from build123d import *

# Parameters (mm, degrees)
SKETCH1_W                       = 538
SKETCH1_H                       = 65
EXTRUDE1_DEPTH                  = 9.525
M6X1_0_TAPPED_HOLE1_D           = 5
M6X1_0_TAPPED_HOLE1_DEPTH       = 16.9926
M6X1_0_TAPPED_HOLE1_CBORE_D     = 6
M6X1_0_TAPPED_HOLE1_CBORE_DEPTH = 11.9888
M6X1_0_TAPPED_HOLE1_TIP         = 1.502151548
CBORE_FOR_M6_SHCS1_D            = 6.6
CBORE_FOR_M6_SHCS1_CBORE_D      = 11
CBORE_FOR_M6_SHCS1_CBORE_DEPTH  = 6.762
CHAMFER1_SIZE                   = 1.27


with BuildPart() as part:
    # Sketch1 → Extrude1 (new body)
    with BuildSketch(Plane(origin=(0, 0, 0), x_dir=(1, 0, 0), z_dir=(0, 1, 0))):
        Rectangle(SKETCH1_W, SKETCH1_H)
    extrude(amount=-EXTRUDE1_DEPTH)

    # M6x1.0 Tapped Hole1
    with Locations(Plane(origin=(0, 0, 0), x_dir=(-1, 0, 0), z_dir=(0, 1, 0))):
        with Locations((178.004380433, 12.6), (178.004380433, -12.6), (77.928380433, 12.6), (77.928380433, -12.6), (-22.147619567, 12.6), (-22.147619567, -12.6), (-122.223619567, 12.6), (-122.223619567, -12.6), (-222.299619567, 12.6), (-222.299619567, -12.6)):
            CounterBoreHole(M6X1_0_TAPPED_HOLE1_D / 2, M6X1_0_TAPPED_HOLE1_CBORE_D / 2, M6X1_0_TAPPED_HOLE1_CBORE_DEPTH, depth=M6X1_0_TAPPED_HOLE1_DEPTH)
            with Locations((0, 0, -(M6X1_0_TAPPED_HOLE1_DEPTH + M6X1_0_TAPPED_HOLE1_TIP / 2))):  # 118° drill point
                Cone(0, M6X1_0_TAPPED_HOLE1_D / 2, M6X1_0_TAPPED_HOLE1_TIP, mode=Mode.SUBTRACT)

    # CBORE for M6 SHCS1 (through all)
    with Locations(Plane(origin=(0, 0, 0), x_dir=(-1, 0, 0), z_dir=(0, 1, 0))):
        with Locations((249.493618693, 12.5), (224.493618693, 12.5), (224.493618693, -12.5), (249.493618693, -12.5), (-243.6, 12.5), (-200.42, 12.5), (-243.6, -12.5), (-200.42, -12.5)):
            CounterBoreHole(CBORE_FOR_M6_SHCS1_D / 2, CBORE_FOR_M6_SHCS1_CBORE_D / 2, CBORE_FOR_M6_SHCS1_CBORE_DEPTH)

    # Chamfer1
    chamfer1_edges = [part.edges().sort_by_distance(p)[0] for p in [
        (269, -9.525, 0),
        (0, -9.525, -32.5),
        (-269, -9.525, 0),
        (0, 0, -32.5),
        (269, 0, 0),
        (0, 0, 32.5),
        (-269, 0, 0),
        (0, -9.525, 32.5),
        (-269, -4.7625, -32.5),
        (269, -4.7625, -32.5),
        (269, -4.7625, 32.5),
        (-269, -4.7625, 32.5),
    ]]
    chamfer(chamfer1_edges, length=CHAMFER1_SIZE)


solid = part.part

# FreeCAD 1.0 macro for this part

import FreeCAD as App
import Part
import Sketcher


def edges_at(feature, points):
    """Names of the edges that pass closest to the given points."""
    edges = feature.Shape.Edges
    near = lambda p: min(range(len(edges)), key=lambda i: edges[i].distToShape(Part.Vertex(*p))[0])
    return sorted({f"Edge{near(p) + 1}" for p in points})


def add_polygon(sketch, points):
    """Adds a closed chain of lines whose ends are joined by coincident constraints."""
    first, n = sketch.GeometryCount, len(points)
    for a, b in zip(points, points[1:] + points[:1]):
        sketch.addGeometry(Part.LineSegment(App.Vector(*a, 0), App.Vector(*b, 0)), False)
    for i in range(n):
        sketch.addConstraint(Sketcher.Constraint("Coincident", first + i, 2, first + (i + 1) % n, 1))

doc = App.newDocument("Part")
body = doc.addObject("PartDesign::Body", "Body")

# Sketch on XZ plane
sketch1 = body.newObject("Sketcher::SketchObject", "Sketch")
sketch1.AttachmentSupport = (doc.getObject("XZ_Plane"), [""])
sketch1.MapMode = "FlatFace"
add_polygon(sketch1, [(-269, -32), (-269, 32), (269, 32), (269, -32)])  # lines 0-3
sketch1.addConstraint([
    Sketcher.Constraint("Vertical", 0),
    Sketcher.Constraint("Horizontal", 1),
    Sketcher.Constraint("Vertical", 2),
    Sketcher.Constraint("Horizontal", 3),
    Sketcher.Constraint("Symmetric", 0, 2, 2, 2, -1, 1),
    Sketcher.Constraint("DistanceX", 1, 1, 1, 2, 538.0),
    Sketcher.Constraint("DistanceY", 0, 1, 0, 2, 65.0),
])
pad1 = body.newObject("PartDesign::Pad", "Pad")
pad1.Profile = sketch1
pad1.Length = 9.525

# Sketch on XZ plane
sketch2 = body.newObject("Sketcher::SketchObject", "Sketch001")
sketch2.AttachmentSupport = (doc.getObject("XZ_Plane"), [""])
sketch2.MapMode = "FlatFace"
sketch2.addGeometry([
    Part.Circle(App.Vector(-178, 12.6, 0), App.Vector(0, 0, 1), 2.5),  # 0
    Part.Circle(App.Vector(-178, -12.6, 0), App.Vector(0, 0, 1), 2.5),  # 1
    Part.Circle(App.Vector(-77.9, 12.6, 0), App.Vector(0, 0, 1), 2.5),  # 2
    Part.Circle(App.Vector(-77.9, -12.6, 0), App.Vector(0, 0, 1), 2.5),  # 3
    Part.Circle(App.Vector(22.1, 12.6, 0), App.Vector(0, 0, 1), 2.5),  # 4
    Part.Circle(App.Vector(22.1, -12.6, 0), App.Vector(0, 0, 1), 2.5),  # 5
    Part.Circle(App.Vector(122.2, 12.6, 0), App.Vector(0, 0, 1), 2.5),  # 6
    Part.Circle(App.Vector(122.2, -12.6, 0), App.Vector(0, 0, 1), 2.5),  # 7
    Part.Circle(App.Vector(222.3, 12.6, 0), App.Vector(0, 0, 1), 2.5),  # 8
    Part.Circle(App.Vector(222.3, -12.6, 0), App.Vector(0, 0, 1), 2.5),  # 9
], False)
sketch2.addConstraint([
    Sketcher.Constraint("Equal", 0, 1),
    Sketcher.Constraint("Equal", 1, 2),
    Sketcher.Constraint("Equal", 2, 3),
    Sketcher.Constraint("Equal", 3, 4),
    Sketcher.Constraint("Equal", 4, 5),
    Sketcher.Constraint("Equal", 5, 6),
    Sketcher.Constraint("Equal", 6, 7),
    Sketcher.Constraint("Equal", 7, 8),
    Sketcher.Constraint("Equal", 8, 9),
    Sketcher.Constraint("Symmetric", 0, 3, 1, 3, -1),
    Sketcher.Constraint("Symmetric", 2, 3, 3, 3, -1),
    Sketcher.Constraint("Symmetric", 4, 3, 5, 3, -1),
    Sketcher.Constraint("Symmetric", 6, 3, 7, 3, -1),
    Sketcher.Constraint("Symmetric", 8, 3, 9, 3, -1),
    Sketcher.Constraint("Horizontal", 0, 3, 2, 3),
    Sketcher.Constraint("Horizontal", 2, 3, 4, 3),
    Sketcher.Constraint("Horizontal", 4, 3, 6, 3),
    Sketcher.Constraint("Horizontal", 6, 3, 8, 3),
    Sketcher.Constraint("Diameter", 0, 5.0),
    Sketcher.Constraint("DistanceY", -1, 1, 0, 3, 12.6),
    Sketcher.Constraint("DistanceX", 0, 3, 2, 3, 100.076),
    Sketcher.Constraint("DistanceX", 2, 3, 4, 3, 100.076),
    Sketcher.Constraint("DistanceX", 4, 3, 6, 3, 100.076),
    Sketcher.Constraint("DistanceX", 6, 3, 8, 3, 100.076),
    Sketcher.Constraint("DistanceX", 0, 3, -1, 1, 178.00438),
])
doc.recompute()
hole = body.newObject("PartDesign::Hole", "Hole")
hole.Profile = sketch2
hole.ThreadType = "None"
hole.Diameter = 5
hole.DepthType = "Dimension"
hole.Depth = 16.9926
hole.DrillPoint = "Angled"
hole.DrillPointAngle = 118
hole.HoleCutType = "Counterbore"
hole.HoleCutDiameter = 6
hole.HoleCutDepth = 11.9888
hole.Reversed = True

# Sketch on XZ plane
sketch3 = body.newObject("Sketcher::SketchObject", "Sketch002")
sketch3.AttachmentSupport = (doc.getObject("XZ_Plane"), [""])
sketch3.MapMode = "FlatFace"
sketch3.addGeometry([
    Part.Circle(App.Vector(-249.5, 12.5, 0), App.Vector(0, 0, 1), 3.3),  # 0
    Part.Circle(App.Vector(-224.5, 12.5, 0), App.Vector(0, 0, 1), 3.3),  # 1
    Part.Circle(App.Vector(-224.5, -12.5, 0), App.Vector(0, 0, 1), 3.3),  # 2
    Part.Circle(App.Vector(-249.5, -12.5, 0), App.Vector(0, 0, 1), 3.3),  # 3
    Part.Circle(App.Vector(243.6, 12.5, 0), App.Vector(0, 0, 1), 3.3),  # 4
    Part.Circle(App.Vector(200.4, 12.5, 0), App.Vector(0, 0, 1), 3.3),  # 5
    Part.Circle(App.Vector(243.6, -12.5, 0), App.Vector(0, 0, 1), 3.3),  # 6
    Part.Circle(App.Vector(200.4, -12.5, 0), App.Vector(0, 0, 1), 3.3),  # 7
], False)
sketch3.addConstraint([
    Sketcher.Constraint("Equal", 0, 1),
    Sketcher.Constraint("Equal", 1, 2),
    Sketcher.Constraint("Equal", 2, 3),
    Sketcher.Constraint("Equal", 3, 4),
    Sketcher.Constraint("Equal", 4, 5),
    Sketcher.Constraint("Equal", 5, 6),
    Sketcher.Constraint("Equal", 6, 7),
    Sketcher.Constraint("Symmetric", 1, 3, 2, 3, -1),
    Sketcher.Constraint("Symmetric", 0, 3, 3, 3, -1),
    Sketcher.Constraint("Symmetric", 4, 3, 6, 3, -1),
    Sketcher.Constraint("Symmetric", 5, 3, 7, 3, -1),
    Sketcher.Constraint("Horizontal", 0, 3, 1, 3),
    Sketcher.Constraint("Horizontal", 1, 3, 4, 3),
    Sketcher.Constraint("Horizontal", 4, 3, 5, 3),
    Sketcher.Constraint("Diameter", 0, 6.6),
    Sketcher.Constraint("DistanceX", 0, 3, 1, 3, 25.0),
    Sketcher.Constraint("DistanceY", 2, 3, 1, 3, 25.0),
    Sketcher.Constraint("DistanceX", -1, 1, 4, 3, 243.6),
    Sketcher.Constraint("DistanceX", -1, 1, 5, 3, 200.42),
    Sketcher.Constraint("DistanceX", 0, 3, -1, 1, 249.493619),
])
doc.recompute()
hole2 = body.newObject("PartDesign::Hole", "Hole001")
hole2.Profile = sketch3
hole2.ThreadType = "None"
hole2.Diameter = 6.6
hole2.DepthType = "ThroughAll"
hole2.HoleCutType = "Counterbore"
hole2.HoleCutDiameter = 11
hole2.HoleCutDepth = 6.762
hole2.Reversed = True
doc.recompute()

chamfer = body.newObject("PartDesign::Chamfer", "Chamfer")
chamfer.Base = (hole2, edges_at(hole2, [
    (269, -9.525, 0),
    (0, -9.525, -32.5),
    (-269, -9.525, 0),
    (0, 0, -32.5),
    (269, 0, 0),
    (0, 0, 32.5),
    (-269, 0, 0),
    (0, -9.525, 32.5),
    (-269, -4.763, -32.5),
    (269, -4.763, -32.5),
    (269, -4.763, 32.5),
    (-269, -4.763, 32.5),
]))
chamfer.Size = 1.27

doc.recompute()
